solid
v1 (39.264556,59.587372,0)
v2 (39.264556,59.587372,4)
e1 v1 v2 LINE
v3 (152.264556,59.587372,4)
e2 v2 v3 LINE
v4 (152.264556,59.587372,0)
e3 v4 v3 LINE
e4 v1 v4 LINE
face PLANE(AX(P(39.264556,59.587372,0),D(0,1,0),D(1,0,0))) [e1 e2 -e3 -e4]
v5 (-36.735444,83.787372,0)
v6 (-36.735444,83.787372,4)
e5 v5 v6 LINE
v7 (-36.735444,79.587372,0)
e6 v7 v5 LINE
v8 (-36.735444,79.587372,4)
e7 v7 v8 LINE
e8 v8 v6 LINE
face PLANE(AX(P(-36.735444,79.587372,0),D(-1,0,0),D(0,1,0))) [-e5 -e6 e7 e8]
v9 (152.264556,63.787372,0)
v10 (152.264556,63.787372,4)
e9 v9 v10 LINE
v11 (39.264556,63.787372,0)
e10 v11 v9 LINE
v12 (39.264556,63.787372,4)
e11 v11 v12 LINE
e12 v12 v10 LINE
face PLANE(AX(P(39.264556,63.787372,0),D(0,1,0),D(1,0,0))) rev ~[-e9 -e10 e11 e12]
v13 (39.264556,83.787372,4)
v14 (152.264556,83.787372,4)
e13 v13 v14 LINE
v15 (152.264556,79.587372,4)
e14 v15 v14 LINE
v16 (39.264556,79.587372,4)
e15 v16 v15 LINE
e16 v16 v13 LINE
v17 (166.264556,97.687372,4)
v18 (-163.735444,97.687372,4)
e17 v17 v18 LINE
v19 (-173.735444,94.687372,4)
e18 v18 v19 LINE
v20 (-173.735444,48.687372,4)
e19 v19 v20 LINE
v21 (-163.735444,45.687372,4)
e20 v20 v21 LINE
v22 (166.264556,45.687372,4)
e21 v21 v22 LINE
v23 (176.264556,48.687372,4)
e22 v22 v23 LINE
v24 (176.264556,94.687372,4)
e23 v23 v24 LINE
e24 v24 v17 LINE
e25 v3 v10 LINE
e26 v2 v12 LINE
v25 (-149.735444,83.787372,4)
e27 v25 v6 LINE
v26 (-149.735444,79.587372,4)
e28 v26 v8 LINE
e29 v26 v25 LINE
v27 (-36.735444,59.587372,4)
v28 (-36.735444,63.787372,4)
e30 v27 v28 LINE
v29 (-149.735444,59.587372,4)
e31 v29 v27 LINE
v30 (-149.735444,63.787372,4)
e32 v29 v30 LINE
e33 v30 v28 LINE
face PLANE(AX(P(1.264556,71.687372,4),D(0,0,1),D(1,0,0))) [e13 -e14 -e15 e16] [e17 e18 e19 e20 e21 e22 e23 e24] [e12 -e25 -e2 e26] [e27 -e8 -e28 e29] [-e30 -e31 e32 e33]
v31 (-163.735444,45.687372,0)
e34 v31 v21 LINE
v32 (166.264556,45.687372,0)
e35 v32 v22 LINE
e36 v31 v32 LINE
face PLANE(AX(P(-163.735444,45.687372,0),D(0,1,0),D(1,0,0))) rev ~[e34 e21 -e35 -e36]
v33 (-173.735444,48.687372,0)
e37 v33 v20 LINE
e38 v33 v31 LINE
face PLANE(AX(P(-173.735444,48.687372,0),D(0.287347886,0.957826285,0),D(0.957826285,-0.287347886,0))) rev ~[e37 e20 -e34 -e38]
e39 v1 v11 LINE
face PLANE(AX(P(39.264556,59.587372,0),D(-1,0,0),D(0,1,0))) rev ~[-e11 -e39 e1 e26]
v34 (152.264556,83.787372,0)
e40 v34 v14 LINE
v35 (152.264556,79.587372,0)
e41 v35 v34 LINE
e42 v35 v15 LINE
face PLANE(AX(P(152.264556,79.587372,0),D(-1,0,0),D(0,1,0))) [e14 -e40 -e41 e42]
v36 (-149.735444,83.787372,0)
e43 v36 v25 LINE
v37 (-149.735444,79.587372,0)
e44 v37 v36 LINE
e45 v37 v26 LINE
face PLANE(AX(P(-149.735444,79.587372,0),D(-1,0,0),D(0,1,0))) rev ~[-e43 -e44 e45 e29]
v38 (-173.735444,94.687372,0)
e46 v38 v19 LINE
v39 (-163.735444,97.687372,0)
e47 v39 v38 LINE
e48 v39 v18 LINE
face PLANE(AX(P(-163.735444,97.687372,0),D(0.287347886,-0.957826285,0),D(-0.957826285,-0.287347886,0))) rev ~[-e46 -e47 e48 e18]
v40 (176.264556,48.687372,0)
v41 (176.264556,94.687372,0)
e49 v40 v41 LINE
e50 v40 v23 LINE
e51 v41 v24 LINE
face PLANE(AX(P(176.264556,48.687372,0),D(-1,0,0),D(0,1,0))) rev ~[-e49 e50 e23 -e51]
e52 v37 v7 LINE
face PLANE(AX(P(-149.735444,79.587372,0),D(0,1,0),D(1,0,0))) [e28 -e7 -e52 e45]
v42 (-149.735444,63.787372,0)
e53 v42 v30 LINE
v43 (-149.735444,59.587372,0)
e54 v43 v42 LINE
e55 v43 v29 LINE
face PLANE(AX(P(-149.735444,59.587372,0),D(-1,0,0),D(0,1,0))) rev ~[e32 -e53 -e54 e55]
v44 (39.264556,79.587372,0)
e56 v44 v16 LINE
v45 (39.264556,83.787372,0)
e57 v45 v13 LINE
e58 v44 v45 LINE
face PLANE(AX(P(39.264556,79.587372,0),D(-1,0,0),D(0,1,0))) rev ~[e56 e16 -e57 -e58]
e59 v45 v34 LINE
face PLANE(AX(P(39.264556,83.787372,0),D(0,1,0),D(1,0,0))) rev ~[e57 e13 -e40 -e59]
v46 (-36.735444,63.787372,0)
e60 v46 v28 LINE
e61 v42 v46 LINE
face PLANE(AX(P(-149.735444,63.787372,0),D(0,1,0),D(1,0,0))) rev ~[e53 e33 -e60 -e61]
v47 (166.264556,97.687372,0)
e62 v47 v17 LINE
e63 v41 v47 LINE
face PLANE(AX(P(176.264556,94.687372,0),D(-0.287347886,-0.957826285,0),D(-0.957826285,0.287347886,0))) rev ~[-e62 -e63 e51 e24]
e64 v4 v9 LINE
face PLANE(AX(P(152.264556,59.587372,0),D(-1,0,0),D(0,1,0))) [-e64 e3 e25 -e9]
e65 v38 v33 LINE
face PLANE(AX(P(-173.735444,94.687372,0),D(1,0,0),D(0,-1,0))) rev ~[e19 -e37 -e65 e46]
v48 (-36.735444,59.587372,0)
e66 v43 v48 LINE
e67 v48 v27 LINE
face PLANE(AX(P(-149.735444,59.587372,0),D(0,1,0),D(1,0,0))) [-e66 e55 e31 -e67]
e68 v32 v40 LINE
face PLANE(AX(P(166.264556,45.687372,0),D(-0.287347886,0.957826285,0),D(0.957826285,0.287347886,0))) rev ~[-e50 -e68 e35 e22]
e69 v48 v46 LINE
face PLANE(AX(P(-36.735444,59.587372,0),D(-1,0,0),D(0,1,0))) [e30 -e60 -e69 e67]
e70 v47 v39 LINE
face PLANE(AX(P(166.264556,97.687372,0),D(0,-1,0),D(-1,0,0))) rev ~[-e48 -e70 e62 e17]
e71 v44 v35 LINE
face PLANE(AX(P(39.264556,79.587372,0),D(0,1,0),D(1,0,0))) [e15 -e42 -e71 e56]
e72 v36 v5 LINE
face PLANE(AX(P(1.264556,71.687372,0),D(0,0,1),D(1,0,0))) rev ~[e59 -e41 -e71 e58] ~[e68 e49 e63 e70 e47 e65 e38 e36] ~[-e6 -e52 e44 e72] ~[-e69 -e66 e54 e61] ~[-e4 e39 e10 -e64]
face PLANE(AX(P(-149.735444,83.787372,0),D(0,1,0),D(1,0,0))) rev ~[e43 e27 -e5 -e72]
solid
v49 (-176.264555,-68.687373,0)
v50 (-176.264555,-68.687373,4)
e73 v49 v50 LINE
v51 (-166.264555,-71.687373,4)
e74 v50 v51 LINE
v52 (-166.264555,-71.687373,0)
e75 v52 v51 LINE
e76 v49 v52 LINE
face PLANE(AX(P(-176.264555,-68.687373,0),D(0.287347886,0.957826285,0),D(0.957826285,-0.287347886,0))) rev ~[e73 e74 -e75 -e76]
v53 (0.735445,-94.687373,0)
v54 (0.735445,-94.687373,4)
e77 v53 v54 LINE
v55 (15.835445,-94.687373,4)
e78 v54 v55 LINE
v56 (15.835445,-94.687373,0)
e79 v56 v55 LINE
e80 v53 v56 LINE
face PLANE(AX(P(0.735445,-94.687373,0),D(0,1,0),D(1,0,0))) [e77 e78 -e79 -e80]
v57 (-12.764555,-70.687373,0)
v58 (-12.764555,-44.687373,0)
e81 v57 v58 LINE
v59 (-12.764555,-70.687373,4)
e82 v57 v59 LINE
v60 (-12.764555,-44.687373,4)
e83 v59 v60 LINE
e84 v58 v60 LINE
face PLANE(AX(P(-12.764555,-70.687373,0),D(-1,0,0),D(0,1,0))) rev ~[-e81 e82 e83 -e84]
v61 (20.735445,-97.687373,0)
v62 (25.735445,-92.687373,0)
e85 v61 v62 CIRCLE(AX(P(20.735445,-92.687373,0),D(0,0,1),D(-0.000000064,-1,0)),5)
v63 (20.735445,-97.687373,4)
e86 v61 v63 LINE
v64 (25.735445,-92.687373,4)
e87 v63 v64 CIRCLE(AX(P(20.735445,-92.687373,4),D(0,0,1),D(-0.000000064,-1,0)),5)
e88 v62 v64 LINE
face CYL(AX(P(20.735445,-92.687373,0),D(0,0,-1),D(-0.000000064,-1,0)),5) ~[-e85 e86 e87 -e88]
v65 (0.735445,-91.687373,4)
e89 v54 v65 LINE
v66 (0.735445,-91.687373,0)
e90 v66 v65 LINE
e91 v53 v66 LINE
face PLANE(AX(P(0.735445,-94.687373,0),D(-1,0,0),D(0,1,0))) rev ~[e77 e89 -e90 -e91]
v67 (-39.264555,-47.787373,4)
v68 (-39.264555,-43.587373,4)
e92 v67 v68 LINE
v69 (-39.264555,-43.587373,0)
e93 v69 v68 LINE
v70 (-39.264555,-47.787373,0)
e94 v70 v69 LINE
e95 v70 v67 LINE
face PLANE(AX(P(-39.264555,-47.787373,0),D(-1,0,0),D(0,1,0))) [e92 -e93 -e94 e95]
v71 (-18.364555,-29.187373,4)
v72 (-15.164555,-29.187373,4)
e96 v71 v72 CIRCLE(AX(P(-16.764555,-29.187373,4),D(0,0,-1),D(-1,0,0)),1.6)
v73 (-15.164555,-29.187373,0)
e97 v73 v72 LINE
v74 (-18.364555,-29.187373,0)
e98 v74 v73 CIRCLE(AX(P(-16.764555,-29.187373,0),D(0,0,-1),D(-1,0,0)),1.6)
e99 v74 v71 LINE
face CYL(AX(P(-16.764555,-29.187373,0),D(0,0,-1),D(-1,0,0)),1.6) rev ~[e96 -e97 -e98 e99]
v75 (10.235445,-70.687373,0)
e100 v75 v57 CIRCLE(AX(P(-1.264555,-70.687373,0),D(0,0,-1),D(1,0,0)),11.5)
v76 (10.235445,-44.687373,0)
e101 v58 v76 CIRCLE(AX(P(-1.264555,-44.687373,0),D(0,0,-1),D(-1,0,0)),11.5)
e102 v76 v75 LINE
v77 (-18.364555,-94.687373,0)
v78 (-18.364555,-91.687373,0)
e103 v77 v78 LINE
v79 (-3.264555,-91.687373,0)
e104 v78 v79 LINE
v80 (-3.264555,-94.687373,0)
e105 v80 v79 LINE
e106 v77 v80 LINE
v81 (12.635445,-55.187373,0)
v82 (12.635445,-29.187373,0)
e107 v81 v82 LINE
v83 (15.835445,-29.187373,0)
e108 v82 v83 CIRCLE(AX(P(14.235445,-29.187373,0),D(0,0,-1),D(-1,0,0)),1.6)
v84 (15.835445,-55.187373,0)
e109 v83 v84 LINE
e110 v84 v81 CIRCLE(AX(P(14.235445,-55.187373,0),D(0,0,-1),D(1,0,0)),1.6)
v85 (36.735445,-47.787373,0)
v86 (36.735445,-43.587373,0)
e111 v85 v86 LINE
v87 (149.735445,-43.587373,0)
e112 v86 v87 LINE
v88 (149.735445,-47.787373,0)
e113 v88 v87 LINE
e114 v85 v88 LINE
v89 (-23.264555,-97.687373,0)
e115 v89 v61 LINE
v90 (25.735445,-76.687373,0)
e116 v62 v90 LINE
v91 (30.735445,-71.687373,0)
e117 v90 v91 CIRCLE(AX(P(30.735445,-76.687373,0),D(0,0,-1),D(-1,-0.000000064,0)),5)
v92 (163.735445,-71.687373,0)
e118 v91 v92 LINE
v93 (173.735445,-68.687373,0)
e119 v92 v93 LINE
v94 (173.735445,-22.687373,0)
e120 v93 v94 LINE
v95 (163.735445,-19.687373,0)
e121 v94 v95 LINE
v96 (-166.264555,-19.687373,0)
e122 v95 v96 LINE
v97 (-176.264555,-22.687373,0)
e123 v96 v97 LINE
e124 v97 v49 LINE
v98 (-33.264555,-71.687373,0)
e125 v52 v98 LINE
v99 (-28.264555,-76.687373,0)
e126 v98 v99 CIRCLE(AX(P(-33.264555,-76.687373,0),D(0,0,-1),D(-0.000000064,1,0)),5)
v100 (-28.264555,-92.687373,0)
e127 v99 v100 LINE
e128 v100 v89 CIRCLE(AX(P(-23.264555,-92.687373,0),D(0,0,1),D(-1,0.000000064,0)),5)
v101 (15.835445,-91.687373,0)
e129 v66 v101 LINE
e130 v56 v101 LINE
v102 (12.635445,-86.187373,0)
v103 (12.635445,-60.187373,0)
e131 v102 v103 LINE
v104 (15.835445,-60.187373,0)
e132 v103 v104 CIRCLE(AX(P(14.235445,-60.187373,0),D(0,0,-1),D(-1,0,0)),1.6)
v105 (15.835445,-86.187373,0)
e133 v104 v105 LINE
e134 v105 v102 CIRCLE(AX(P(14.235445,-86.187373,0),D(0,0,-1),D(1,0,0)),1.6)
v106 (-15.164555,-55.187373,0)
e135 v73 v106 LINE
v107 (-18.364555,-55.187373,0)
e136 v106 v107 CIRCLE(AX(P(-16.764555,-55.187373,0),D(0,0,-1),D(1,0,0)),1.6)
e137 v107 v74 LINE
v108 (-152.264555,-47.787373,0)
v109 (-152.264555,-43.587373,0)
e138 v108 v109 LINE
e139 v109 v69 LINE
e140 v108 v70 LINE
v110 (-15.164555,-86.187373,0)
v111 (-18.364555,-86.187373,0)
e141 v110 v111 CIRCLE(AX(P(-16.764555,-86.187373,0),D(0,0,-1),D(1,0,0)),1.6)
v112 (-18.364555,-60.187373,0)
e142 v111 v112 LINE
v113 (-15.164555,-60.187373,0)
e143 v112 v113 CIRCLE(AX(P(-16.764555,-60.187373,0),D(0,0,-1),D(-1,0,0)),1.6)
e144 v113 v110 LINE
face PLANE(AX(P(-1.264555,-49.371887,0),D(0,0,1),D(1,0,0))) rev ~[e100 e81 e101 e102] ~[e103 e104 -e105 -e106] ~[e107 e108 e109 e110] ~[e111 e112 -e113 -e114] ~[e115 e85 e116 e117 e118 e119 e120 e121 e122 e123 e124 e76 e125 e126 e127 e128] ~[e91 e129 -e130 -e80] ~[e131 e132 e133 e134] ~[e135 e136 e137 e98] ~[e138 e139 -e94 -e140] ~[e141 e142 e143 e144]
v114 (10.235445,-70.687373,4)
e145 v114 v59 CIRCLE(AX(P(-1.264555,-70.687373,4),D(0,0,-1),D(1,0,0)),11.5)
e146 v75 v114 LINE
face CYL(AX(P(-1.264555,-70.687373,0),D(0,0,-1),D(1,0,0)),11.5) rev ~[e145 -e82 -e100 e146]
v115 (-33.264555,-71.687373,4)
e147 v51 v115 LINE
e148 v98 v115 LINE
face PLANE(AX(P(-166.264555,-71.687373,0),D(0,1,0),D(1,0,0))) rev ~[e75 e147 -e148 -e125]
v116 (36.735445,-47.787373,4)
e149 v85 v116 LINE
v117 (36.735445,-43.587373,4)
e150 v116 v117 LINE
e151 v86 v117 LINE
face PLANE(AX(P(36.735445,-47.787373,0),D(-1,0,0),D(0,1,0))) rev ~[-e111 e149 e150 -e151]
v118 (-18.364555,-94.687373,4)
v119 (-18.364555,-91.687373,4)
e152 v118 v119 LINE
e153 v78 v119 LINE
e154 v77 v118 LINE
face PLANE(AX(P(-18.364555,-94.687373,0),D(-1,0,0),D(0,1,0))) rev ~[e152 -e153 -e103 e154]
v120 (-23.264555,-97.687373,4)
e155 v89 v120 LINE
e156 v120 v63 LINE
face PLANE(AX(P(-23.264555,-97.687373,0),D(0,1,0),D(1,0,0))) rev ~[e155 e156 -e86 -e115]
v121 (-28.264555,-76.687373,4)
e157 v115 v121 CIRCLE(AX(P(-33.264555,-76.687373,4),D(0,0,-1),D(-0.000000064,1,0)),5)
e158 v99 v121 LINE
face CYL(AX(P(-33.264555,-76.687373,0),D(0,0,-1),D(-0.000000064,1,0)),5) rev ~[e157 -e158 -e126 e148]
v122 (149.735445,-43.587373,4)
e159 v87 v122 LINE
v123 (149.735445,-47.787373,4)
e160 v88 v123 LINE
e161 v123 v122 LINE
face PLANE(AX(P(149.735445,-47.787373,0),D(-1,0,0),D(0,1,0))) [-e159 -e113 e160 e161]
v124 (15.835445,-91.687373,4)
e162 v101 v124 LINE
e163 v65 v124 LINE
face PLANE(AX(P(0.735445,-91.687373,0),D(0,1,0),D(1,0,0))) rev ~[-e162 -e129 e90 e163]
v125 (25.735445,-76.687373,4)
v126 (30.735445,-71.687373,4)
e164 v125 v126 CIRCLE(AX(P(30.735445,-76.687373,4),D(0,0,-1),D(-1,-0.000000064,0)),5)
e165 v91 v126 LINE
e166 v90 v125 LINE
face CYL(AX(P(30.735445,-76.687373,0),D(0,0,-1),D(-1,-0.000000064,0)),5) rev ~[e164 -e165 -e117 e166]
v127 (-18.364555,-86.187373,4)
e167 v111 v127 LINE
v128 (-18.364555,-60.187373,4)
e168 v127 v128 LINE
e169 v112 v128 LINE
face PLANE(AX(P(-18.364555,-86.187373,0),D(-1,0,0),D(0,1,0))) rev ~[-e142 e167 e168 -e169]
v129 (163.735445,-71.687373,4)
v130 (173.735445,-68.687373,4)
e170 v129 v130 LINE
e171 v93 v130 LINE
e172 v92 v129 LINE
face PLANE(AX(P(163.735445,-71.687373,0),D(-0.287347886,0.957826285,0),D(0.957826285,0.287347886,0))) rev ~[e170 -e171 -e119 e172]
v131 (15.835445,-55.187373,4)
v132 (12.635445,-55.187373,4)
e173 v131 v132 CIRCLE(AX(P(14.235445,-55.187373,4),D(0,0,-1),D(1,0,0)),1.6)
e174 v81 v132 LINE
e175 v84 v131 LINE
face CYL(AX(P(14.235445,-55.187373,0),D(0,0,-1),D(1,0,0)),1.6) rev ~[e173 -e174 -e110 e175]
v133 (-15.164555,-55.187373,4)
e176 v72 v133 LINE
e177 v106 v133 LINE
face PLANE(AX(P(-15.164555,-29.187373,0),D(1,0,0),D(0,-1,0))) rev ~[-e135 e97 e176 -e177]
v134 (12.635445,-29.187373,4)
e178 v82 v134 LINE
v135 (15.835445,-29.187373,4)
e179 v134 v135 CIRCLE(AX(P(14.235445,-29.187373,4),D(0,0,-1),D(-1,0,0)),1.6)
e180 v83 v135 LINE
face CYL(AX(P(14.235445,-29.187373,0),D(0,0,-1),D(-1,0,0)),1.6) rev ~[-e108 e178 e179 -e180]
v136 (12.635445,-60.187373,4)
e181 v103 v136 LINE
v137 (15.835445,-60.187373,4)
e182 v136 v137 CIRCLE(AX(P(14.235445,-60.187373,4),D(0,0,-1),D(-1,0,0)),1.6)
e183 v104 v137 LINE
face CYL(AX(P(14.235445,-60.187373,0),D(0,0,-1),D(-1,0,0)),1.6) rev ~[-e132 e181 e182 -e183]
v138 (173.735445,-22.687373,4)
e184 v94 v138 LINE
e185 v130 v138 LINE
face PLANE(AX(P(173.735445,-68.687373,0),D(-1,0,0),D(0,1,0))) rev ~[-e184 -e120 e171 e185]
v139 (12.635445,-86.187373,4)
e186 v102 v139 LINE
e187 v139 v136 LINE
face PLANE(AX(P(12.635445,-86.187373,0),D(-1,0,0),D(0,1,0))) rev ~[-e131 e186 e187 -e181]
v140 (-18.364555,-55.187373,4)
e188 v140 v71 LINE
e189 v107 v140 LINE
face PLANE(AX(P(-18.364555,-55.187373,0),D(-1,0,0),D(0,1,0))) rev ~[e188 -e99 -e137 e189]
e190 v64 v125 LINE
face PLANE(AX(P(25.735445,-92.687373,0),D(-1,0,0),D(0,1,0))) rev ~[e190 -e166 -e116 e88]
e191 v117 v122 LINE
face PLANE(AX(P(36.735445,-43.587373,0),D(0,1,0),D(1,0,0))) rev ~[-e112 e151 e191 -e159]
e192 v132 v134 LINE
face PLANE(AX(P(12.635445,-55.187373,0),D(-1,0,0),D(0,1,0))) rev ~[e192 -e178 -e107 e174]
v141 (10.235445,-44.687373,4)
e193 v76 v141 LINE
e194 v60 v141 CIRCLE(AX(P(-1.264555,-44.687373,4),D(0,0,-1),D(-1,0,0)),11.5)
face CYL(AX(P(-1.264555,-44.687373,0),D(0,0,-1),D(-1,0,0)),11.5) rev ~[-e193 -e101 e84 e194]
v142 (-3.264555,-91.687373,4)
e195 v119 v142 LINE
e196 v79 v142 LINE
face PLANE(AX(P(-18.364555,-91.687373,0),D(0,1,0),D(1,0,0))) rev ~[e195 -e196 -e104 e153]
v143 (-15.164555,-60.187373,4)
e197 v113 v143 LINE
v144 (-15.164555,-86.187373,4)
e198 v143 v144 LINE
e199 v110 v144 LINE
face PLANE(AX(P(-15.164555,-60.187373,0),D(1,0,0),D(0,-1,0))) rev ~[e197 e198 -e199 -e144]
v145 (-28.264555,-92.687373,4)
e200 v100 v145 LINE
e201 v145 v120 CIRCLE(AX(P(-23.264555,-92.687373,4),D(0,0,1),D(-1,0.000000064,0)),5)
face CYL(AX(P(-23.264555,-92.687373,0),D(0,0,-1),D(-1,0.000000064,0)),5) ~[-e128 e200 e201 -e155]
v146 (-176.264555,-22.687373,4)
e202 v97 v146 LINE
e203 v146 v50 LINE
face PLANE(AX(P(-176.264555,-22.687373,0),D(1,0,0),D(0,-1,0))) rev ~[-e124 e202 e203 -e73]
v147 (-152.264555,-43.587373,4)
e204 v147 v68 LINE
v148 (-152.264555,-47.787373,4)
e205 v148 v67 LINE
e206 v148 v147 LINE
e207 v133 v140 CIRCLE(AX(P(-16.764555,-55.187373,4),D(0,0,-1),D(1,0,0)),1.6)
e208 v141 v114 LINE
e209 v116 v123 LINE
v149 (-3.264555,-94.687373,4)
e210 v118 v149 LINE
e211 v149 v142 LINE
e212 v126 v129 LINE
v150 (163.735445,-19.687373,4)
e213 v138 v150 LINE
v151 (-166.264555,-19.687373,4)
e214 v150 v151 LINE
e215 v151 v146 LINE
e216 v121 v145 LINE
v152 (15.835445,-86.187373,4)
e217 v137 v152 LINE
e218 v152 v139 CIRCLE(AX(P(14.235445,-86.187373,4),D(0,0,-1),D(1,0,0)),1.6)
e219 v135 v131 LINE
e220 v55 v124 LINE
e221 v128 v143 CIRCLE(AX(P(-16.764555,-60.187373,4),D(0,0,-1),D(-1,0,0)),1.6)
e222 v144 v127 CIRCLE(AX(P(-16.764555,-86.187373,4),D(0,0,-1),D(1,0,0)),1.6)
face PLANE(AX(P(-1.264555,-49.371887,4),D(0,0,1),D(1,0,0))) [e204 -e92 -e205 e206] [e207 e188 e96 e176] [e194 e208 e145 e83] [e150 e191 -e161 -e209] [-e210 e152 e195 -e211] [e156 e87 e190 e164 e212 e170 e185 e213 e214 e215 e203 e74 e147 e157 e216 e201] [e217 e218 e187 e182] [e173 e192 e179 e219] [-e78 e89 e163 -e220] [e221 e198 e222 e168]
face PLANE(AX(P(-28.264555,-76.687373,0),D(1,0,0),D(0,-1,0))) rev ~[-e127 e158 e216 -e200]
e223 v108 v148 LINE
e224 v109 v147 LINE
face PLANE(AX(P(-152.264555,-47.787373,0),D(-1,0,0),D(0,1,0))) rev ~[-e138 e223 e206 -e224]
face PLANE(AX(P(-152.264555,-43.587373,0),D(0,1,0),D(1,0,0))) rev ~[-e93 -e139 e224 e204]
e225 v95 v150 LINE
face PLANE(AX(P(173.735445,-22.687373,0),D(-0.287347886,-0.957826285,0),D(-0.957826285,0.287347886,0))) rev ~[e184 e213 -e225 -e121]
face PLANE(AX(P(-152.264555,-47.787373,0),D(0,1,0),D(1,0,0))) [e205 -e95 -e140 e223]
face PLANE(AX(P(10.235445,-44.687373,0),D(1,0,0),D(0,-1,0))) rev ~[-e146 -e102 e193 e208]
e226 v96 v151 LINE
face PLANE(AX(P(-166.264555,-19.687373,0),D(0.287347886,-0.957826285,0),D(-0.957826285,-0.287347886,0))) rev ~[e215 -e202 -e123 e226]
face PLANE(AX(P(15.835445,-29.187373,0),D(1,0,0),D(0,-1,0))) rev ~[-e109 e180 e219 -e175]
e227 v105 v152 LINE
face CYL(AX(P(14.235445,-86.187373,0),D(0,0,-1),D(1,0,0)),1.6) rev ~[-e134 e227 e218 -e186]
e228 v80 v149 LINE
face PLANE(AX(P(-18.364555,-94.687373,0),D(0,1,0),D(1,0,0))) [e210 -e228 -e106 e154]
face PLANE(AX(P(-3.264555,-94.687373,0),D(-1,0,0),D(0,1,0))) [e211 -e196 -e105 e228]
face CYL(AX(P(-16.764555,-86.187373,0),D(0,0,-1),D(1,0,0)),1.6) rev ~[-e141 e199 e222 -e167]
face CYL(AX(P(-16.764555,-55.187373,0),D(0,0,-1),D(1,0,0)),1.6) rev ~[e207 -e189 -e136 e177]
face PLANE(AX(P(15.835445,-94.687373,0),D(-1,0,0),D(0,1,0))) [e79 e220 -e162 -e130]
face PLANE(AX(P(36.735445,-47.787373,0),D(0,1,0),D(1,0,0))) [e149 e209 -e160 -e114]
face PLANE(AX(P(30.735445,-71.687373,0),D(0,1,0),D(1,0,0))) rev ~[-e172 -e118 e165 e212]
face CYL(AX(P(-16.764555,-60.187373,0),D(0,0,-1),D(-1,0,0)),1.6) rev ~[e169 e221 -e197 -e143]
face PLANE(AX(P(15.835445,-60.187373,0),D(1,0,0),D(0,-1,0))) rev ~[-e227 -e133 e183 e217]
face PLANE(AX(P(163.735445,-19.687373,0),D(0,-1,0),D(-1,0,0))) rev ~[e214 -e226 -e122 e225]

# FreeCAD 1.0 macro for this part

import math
import FreeCAD as App
import Part
import Sketcher
Q = App.Units.Quantity

doc = App.newDocument("Part")
params = doc.addObject("Spreadsheet::Sheet", "Params")
for row, (alias, value) in enumerate([
    ("sketch1_radius", "5 mm"),
    ("sketch1_radius2", "1.6 mm"),
    ("sketch1_radius3", "11.5 mm"),
    ("sketch1_width", "330 mm"),
    ("sketch1_width2", "113 mm"),
    ("pad1_length", "4 mm"),
], start=1):
    params.set(f"A{row}", alias)
    params.set(f"B{row}", "=" + value)
    params.setAlias(f"B{row}", alias)

body = doc.addObject("PartDesign::Body", "Body")
body.AllowCompound = True

# Sketch on XY plane
sketch1 = body.newObject("Sketcher::SketchObject", "Sketch")
sketch1.AttachmentSupport = (doc.getObject("XY_Plane"), [""])
sketch1.MapMode = "FlatFace"
sketch1.addGeometry(Part.LineSegment(App.Vector(-163.735444, 97.687372, 0), App.Vector(-173.735444, 94.687372, 0)), False)
sketch1.addGeometry(Part.LineSegment(App.Vector(-173.735444, 94.687372, 0), App.Vector(-173.735444, 48.687372, 0)), False)
sketch1.addGeometry(Part.LineSegment(App.Vector(-173.735444, 48.687372, 0), App.Vector(-163.735444, 45.687372, 0)), False)
sketch1.addGeometry(Part.LineSegment(App.Vector(-163.735444, 45.687372, 0), App.Vector(166.264556, 45.687372, 0)), False)
sketch1.addGeometry(Part.LineSegment(App.Vector(166.264556, 45.687372, 0), App.Vector(176.264556, 48.687372, 0)), False)
sketch1.addGeometry(Part.LineSegment(App.Vector(176.264556, 48.687372, 0), App.Vector(176.264556, 94.687372, 0)), False)
sketch1.addGeometry(Part.LineSegment(App.Vector(176.264556, 94.687372, 0), App.Vector(166.264556, 97.687372, 0)), False)
sketch1.addGeometry(Part.LineSegment(App.Vector(166.264556, 97.687372, 0), App.Vector(-163.735444, 97.687372, 0)), False)
sketch1.addGeometry(Part.LineSegment(App.Vector(-36.735444, 59.587372, 0), App.Vector(-149.735444, 59.587372, 0)), False)
sketch1.addGeometry(Part.LineSegment(App.Vector(-149.735444, 59.587372, 0), App.Vector(-149.735444, 63.787372, 0)), False)
sketch1.addGeometry(Part.LineSegment(App.Vector(-149.735444, 63.787372, 0), App.Vector(-36.735444, 63.787372, 0)), False)
sketch1.addGeometry(Part.LineSegment(App.Vector(-36.735444, 63.787372, 0), App.Vector(-36.735444, 59.587372, 0)), False)
sketch1.addGeometry(Part.LineSegment(App.Vector(152.264556, 59.587372, 0), App.Vector(39.264556, 59.587372, 0)), False)
sketch1.addGeometry(Part.LineSegment(App.Vector(39.264556, 59.587372, 0), App.Vector(39.264556, 63.787372, 0)), False)
sketch1.addGeometry(Part.LineSegment(App.Vector(39.264556, 63.787372, 0), App.Vector(152.264556, 63.787372, 0)), False)
sketch1.addGeometry(Part.LineSegment(App.Vector(152.264556, 63.787372, 0), App.Vector(152.264556, 59.587372, 0)), False)
sketch1.addGeometry(Part.LineSegment(App.Vector(-36.735444, 79.587372, 0), App.Vector(-149.735444, 79.587372, 0)), False)
sketch1.addGeometry(Part.LineSegment(App.Vector(-149.735444, 79.587372, 0), App.Vector(-149.735444, 83.787372, 0)), False)
sketch1.addGeometry(Part.LineSegment(App.Vector(-149.735444, 83.787372, 0), App.Vector(-36.735444, 83.787372, 0)), False)
sketch1.addGeometry(Part.LineSegment(App.Vector(-36.735444, 83.787372, 0), App.Vector(-36.735444, 79.587372, 0)), False)
sketch1.addGeometry(Part.LineSegment(App.Vector(152.264556, 79.587372, 0), App.Vector(39.264556, 79.587372, 0)), False)
sketch1.addGeometry(Part.LineSegment(App.Vector(39.264556, 79.587372, 0), App.Vector(39.264556, 83.787372, 0)), False)
sketch1.addGeometry(Part.LineSegment(App.Vector(39.264556, 83.787372, 0), App.Vector(152.264556, 83.787372, 0)), False)
sketch1.addGeometry(Part.LineSegment(App.Vector(152.264556, 83.787372, 0), App.Vector(152.264556, 79.587372, 0)), False)
sketch1.addGeometry(Part.LineSegment(App.Vector(163.735445, -19.687373, 0), App.Vector(-166.264555, -19.687373, 0)), False)
sketch1.addGeometry(Part.LineSegment(App.Vector(-166.264555, -19.687373, 0), App.Vector(-176.264555, -22.687373, 0)), False)
sketch1.addGeometry(Part.LineSegment(App.Vector(-176.264555, -22.687373, 0), App.Vector(-176.264555, -68.687373, 0)), False)
sketch1.addGeometry(Part.LineSegment(App.Vector(-176.264555, -68.687373, 0), App.Vector(-166.264555, -71.687373, 0)), False)
sketch1.addGeometry(Part.LineSegment(App.Vector(-166.264555, -71.687373, 0), App.Vector(-33.264555, -71.687373, 0)), False)
sketch1.addGeometry(Part.ArcOfCircle(Part.Circle(App.Vector(-33.264555, -76.687373, 0), App.Vector(0, 0, 1), 5), math.radians(-0.000004), math.radians(90.000004)), False)
sketch1.addGeometry(Part.LineSegment(App.Vector(-28.264555, -76.687373, 0), App.Vector(-28.264555, -92.687373, 0)), False)
sketch1.addGeometry(Part.ArcOfCircle(Part.Circle(App.Vector(-23.264555, -92.687373, 0), App.Vector(0, 0, 1), 5), math.radians(179.999996), math.radians(270.000004)), False)
sketch1.addGeometry(Part.LineSegment(App.Vector(-23.264555, -97.687373, 0), App.Vector(20.735445, -97.687373, 0)), False)
sketch1.addGeometry(Part.ArcOfCircle(Part.Circle(App.Vector(20.735445, -92.687373, 0), App.Vector(0, 0, 1), 5), math.radians(-90.000004), math.radians(0.000004)), False)
sketch1.addGeometry(Part.LineSegment(App.Vector(25.735445, -92.687373, 0), App.Vector(25.735445, -76.687373, 0)), False)
sketch1.addGeometry(Part.ArcOfCircle(Part.Circle(App.Vector(30.735445, -76.687373, 0), App.Vector(0, 0, 1), 5), math.radians(89.999996), math.radians(180.000004)), False)
sketch1.addGeometry(Part.LineSegment(App.Vector(30.735445, -71.687373, 0), App.Vector(163.735445, -71.687373, 0)), False)
sketch1.addGeometry(Part.LineSegment(App.Vector(163.735445, -71.687373, 0), App.Vector(173.735445, -68.687373, 0)), False)
sketch1.addGeometry(Part.LineSegment(App.Vector(173.735445, -68.687373, 0), App.Vector(173.735445, -22.687373, 0)), False)
sketch1.addGeometry(Part.LineSegment(App.Vector(173.735445, -22.687373, 0), App.Vector(163.735445, -19.687373, 0)), False)
sketch1.addGeometry(Part.LineSegment(App.Vector(-3.264555, -94.687373, 0), App.Vector(-18.364555, -94.687373, 0)), False)
sketch1.addGeometry(Part.LineSegment(App.Vector(-18.364555, -94.687373, 0), App.Vector(-18.364555, -91.687373, 0)), False)
sketch1.addGeometry(Part.LineSegment(App.Vector(-18.364555, -91.687373, 0), App.Vector(-3.264555, -91.687373, 0)), False)
sketch1.addGeometry(Part.LineSegment(App.Vector(-3.264555, -91.687373, 0), App.Vector(-3.264555, -94.687373, 0)), False)
sketch1.addGeometry(Part.ArcOfCircle(Part.Circle(App.Vector(-16.764555, -60.187373, 0), App.Vector(0, 0, 1), 1.6), math.radians(0), math.radians(180)), False)
sketch1.addGeometry(Part.LineSegment(App.Vector(-15.164555, -60.187373, 0), App.Vector(-15.164555, -86.187373, 0)), False)
sketch1.addGeometry(Part.ArcOfCircle(Part.Circle(App.Vector(-16.764555, -86.187373, 0), App.Vector(0, 0, 1), 1.6), math.radians(180), math.radians(360)), False)
sketch1.addGeometry(Part.LineSegment(App.Vector(-18.364555, -86.187373, 0), App.Vector(-18.364555, -60.187373, 0)), False)
sketch1.addGeometry(Part.LineSegment(App.Vector(15.835445, -94.687373, 0), App.Vector(0.735445, -94.687373, 0)), False)
sketch1.addGeometry(Part.LineSegment(App.Vector(0.735445, -94.687373, 0), App.Vector(0.735445, -91.687373, 0)), False)
sketch1.addGeometry(Part.LineSegment(App.Vector(0.735445, -91.687373, 0), App.Vector(15.835445, -91.687373, 0)), False)
sketch1.addGeometry(Part.LineSegment(App.Vector(15.835445, -91.687373, 0), App.Vector(15.835445, -94.687373, 0)), False)
sketch1.addGeometry(Part.ArcOfCircle(Part.Circle(App.Vector(14.235445, -60.187373, 0), App.Vector(0, 0, 1), 1.6), math.radians(0), math.radians(180)), False)
sketch1.addGeometry(Part.LineSegment(App.Vector(15.835445, -60.187373, 0), App.Vector(15.835445, -86.187373, 0)), False)
sketch1.addGeometry(Part.ArcOfCircle(Part.Circle(App.Vector(14.235445, -86.187373, 0), App.Vector(0, 0, 1), 1.6), math.radians(180), math.radians(360)), False)
sketch1.addGeometry(Part.LineSegment(App.Vector(12.635445, -86.187373, 0), App.Vector(12.635445, -60.187373, 0)), False)
sketch1.addGeometry(Part.LineSegment(App.Vector(-39.264555, -47.787373, 0), App.Vector(-152.264555, -47.787373, 0)), False)
sketch1.addGeometry(Part.LineSegment(App.Vector(-152.264555, -47.787373, 0), App.Vector(-152.264555, -43.587373, 0)), False)
sketch1.addGeometry(Part.LineSegment(App.Vector(-152.264555, -43.587373, 0), App.Vector(-39.264555, -43.587373, 0)), False)
sketch1.addGeometry(Part.LineSegment(App.Vector(-39.264555, -43.587373, 0), App.Vector(-39.264555, -47.787373, 0)), False)
sketch1.addGeometry(Part.ArcOfCircle(Part.Circle(App.Vector(-16.764555, -55.187373, 0), App.Vector(0, 0, 1), 1.6), math.radians(180), math.radians(360)), False)
sketch1.addGeometry(Part.LineSegment(App.Vector(-18.364555, -55.187373, 0), App.Vector(-18.364555, -29.187373, 0)), False)
sketch1.addGeometry(Part.ArcOfCircle(Part.Circle(App.Vector(-16.764555, -29.187373, 0), App.Vector(0, 0, 1), 1.6), math.radians(0), math.radians(180)), False)
sketch1.addGeometry(Part.LineSegment(App.Vector(-15.164555, -29.187373, 0), App.Vector(-15.164555, -55.187373, 0)), False)
sketch1.addGeometry(Part.ArcOfCircle(Part.Circle(App.Vector(-1.264555, -70.687373, 0), App.Vector(0, 0, 1), 11.5), math.radians(180), math.radians(360)), False)
sketch1.addGeometry(Part.LineSegment(App.Vector(-12.764555, -70.687373, 0), App.Vector(-12.764555, -44.687373, 0)), False)
sketch1.addGeometry(Part.ArcOfCircle(Part.Circle(App.Vector(-1.264555, -44.687373, 0), App.Vector(0, 0, 1), 11.5), math.radians(0), math.radians(180)), False)
sketch1.addGeometry(Part.LineSegment(App.Vector(10.235445, -44.687373, 0), App.Vector(10.235445, -70.687373, 0)), False)
sketch1.addGeometry(Part.LineSegment(App.Vector(149.735445, -47.787373, 0), App.Vector(36.735445, -47.787373, 0)), False)
sketch1.addGeometry(Part.LineSegment(App.Vector(36.735445, -47.787373, 0), App.Vector(36.735445, -43.587373, 0)), False)
sketch1.addGeometry(Part.LineSegment(App.Vector(36.735445, -43.587373, 0), App.Vector(149.735445, -43.587373, 0)), False)
sketch1.addGeometry(Part.LineSegment(App.Vector(149.735445, -43.587373, 0), App.Vector(149.735445, -47.787373, 0)), False)
sketch1.addGeometry(Part.ArcOfCircle(Part.Circle(App.Vector(14.235445, -55.187373, 0), App.Vector(0, 0, 1), 1.6), math.radians(180), math.radians(360)), False)
sketch1.addGeometry(Part.LineSegment(App.Vector(12.635445, -55.187373, 0), App.Vector(12.635445, -29.187373, 0)), False)
sketch1.addGeometry(Part.ArcOfCircle(Part.Circle(App.Vector(14.235445, -29.187373, 0), App.Vector(0, 0, 1), 1.6), math.radians(0), math.radians(180)), False)
sketch1.addGeometry(Part.LineSegment(App.Vector(15.835445, -29.187373, 0), App.Vector(15.835445, -55.187373, 0)), False)
sketch1.addConstraint(Sketcher.Constraint("Coincident", 0, 2, 1, 1))
sketch1.addConstraint(Sketcher.Constraint("Coincident", 1, 2, 2, 1))
sketch1.addConstraint(Sketcher.Constraint("Coincident", 2, 2, 3, 1))
sketch1.addConstraint(Sketcher.Constraint("Coincident", 3, 2, 4, 1))
sketch1.addConstraint(Sketcher.Constraint("Coincident", 4, 2, 5, 1))
sketch1.addConstraint(Sketcher.Constraint("Coincident", 5, 2, 6, 1))
sketch1.addConstraint(Sketcher.Constraint("Coincident", 6, 2, 7, 1))
sketch1.addConstraint(Sketcher.Constraint("Coincident", 7, 2, 0, 1))
sketch1.addConstraint(Sketcher.Constraint("Coincident", 8, 2, 9, 1))
sketch1.addConstraint(Sketcher.Constraint("Coincident", 9, 2, 10, 1))
sketch1.addConstraint(Sketcher.Constraint("Coincident", 10, 2, 11, 1))
sketch1.addConstraint(Sketcher.Constraint("Coincident", 11, 2, 8, 1))
sketch1.addConstraint(Sketcher.Constraint("Coincident", 12, 2, 13, 1))
sketch1.addConstraint(Sketcher.Constraint("Coincident", 13, 2, 14, 1))
sketch1.addConstraint(Sketcher.Constraint("Coincident", 14, 2, 15, 1))
sketch1.addConstraint(Sketcher.Constraint("Coincident", 15, 2, 12, 1))
sketch1.addConstraint(Sketcher.Constraint("Coincident", 16, 2, 17, 1))
sketch1.addConstraint(Sketcher.Constraint("Coincident", 17, 2, 18, 1))
sketch1.addConstraint(Sketcher.Constraint("Coincident", 18, 2, 19, 1))
sketch1.addConstraint(Sketcher.Constraint("Coincident", 19, 2, 16, 1))
sketch1.addConstraint(Sketcher.Constraint("Coincident", 20, 2, 21, 1))
sketch1.addConstraint(Sketcher.Constraint("Coincident", 21, 2, 22, 1))
sketch1.addConstraint(Sketcher.Constraint("Coincident", 22, 2, 23, 1))
sketch1.addConstraint(Sketcher.Constraint("Coincident", 23, 2, 20, 1))
sketch1.addConstraint(Sketcher.Constraint("Coincident", 24, 2, 25, 1))
sketch1.addConstraint(Sketcher.Constraint("Coincident", 25, 2, 26, 1))
sketch1.addConstraint(Sketcher.Constraint("Coincident", 26, 2, 27, 1))
sketch1.addConstraint(Sketcher.Constraint("Coincident", 27, 2, 28, 1))
sketch1.addConstraint(Sketcher.Constraint("Tangent", 28, 2, 29, 2))
sketch1.addConstraint(Sketcher.Constraint("Tangent", 29, 1, 30, 1))
sketch1.addConstraint(Sketcher.Constraint("Tangent", 30, 2, 31, 1))
sketch1.addConstraint(Sketcher.Constraint("Tangent", 31, 2, 32, 1))
sketch1.addConstraint(Sketcher.Constraint("Tangent", 32, 2, 33, 1))
sketch1.addConstraint(Sketcher.Constraint("Tangent", 33, 2, 34, 1))
sketch1.addConstraint(Sketcher.Constraint("Tangent", 34, 2, 35, 2))
sketch1.addConstraint(Sketcher.Constraint("Tangent", 35, 1, 36, 1))
sketch1.addConstraint(Sketcher.Constraint("Coincident", 36, 2, 37, 1))
sketch1.addConstraint(Sketcher.Constraint("Coincident", 37, 2, 38, 1))
sketch1.addConstraint(Sketcher.Constraint("Coincident", 38, 2, 39, 1))
sketch1.addConstraint(Sketcher.Constraint("Coincident", 39, 2, 24, 1))
sketch1.addConstraint(Sketcher.Constraint("Coincident", 40, 2, 41, 1))
sketch1.addConstraint(Sketcher.Constraint("Coincident", 41, 2, 42, 1))
sketch1.addConstraint(Sketcher.Constraint("Coincident", 42, 2, 43, 1))
sketch1.addConstraint(Sketcher.Constraint("Coincident", 43, 2, 40, 1))
sketch1.addConstraint(Sketcher.Constraint("Tangent", 44, 1, 45, 1))
sketch1.addConstraint(Sketcher.Constraint("Tangent", 45, 2, 46, 2))
sketch1.addConstraint(Sketcher.Constraint("Tangent", 46, 1, 47, 1))
sketch1.addConstraint(Sketcher.Constraint("Tangent", 47, 2, 44, 2))
sketch1.addConstraint(Sketcher.Constraint("Coincident", 48, 2, 49, 1))
sketch1.addConstraint(Sketcher.Constraint("Coincident", 49, 2, 50, 1))
sketch1.addConstraint(Sketcher.Constraint("Coincident", 50, 2, 51, 1))
sketch1.addConstraint(Sketcher.Constraint("Coincident", 51, 2, 48, 1))
sketch1.addConstraint(Sketcher.Constraint("Tangent", 52, 1, 53, 1))
sketch1.addConstraint(Sketcher.Constraint("Tangent", 53, 2, 54, 2))
sketch1.addConstraint(Sketcher.Constraint("Tangent", 54, 1, 55, 1))
sketch1.addConstraint(Sketcher.Constraint("Tangent", 55, 2, 52, 2))
sketch1.addConstraint(Sketcher.Constraint("Coincident", 56, 2, 57, 1))
sketch1.addConstraint(Sketcher.Constraint("Coincident", 57, 2, 58, 1))
sketch1.addConstraint(Sketcher.Constraint("Coincident", 58, 2, 59, 1))
sketch1.addConstraint(Sketcher.Constraint("Coincident", 59, 2, 56, 1))
sketch1.addConstraint(Sketcher.Constraint("Tangent", 60, 1, 61, 1))
sketch1.addConstraint(Sketcher.Constraint("Tangent", 61, 2, 62, 2))
sketch1.addConstraint(Sketcher.Constraint("Tangent", 62, 1, 63, 1))
sketch1.addConstraint(Sketcher.Constraint("Tangent", 63, 2, 60, 2))
sketch1.addConstraint(Sketcher.Constraint("Tangent", 64, 1, 65, 1))
sketch1.addConstraint(Sketcher.Constraint("Tangent", 65, 2, 66, 2))
sketch1.addConstraint(Sketcher.Constraint("Tangent", 66, 1, 67, 1))
sketch1.addConstraint(Sketcher.Constraint("Tangent", 67, 2, 64, 2))
sketch1.addConstraint(Sketcher.Constraint("Coincident", 68, 2, 69, 1))
sketch1.addConstraint(Sketcher.Constraint("Coincident", 69, 2, 70, 1))
sketch1.addConstraint(Sketcher.Constraint("Coincident", 70, 2, 71, 1))
sketch1.addConstraint(Sketcher.Constraint("Coincident", 71, 2, 68, 1))
sketch1.addConstraint(Sketcher.Constraint("Tangent", 72, 1, 73, 1))
sketch1.addConstraint(Sketcher.Constraint("Tangent", 73, 2, 74, 2))
sketch1.addConstraint(Sketcher.Constraint("Tangent", 74, 1, 75, 1))
sketch1.addConstraint(Sketcher.Constraint("Tangent", 75, 2, 72, 2))
sketch1.addConstraint(Sketcher.Constraint("Vertical", 1))
sketch1.addConstraint(Sketcher.Constraint("Horizontal", 3))
sketch1.addConstraint(Sketcher.Constraint("Vertical", 5))
sketch1.addConstraint(Sketcher.Constraint("Horizontal", 7))
sketch1.addConstraint(Sketcher.Constraint("Horizontal", 8))
sketch1.addConstraint(Sketcher.Constraint("Vertical", 9))
sketch1.addConstraint(Sketcher.Constraint("Horizontal", 10))
sketch1.addConstraint(Sketcher.Constraint("Vertical", 11))
sketch1.addConstraint(Sketcher.Constraint("Horizontal", 12))
sketch1.addConstraint(Sketcher.Constraint("Vertical", 13))
sketch1.addConstraint(Sketcher.Constraint("Horizontal", 14))
sketch1.addConstraint(Sketcher.Constraint("Vertical", 15))
sketch1.addConstraint(Sketcher.Constraint("Horizontal", 16))
sketch1.addConstraint(Sketcher.Constraint("Vertical", 17))
sketch1.addConstraint(Sketcher.Constraint("Horizontal", 18))
sketch1.addConstraint(Sketcher.Constraint("Vertical", 19))
sketch1.addConstraint(Sketcher.Constraint("Horizontal", 20))
sketch1.addConstraint(Sketcher.Constraint("Vertical", 21))
sketch1.addConstraint(Sketcher.Constraint("Horizontal", 22))
sketch1.addConstraint(Sketcher.Constraint("Vertical", 23))
sketch1.addConstraint(Sketcher.Constraint("Horizontal", 24))
sketch1.addConstraint(Sketcher.Constraint("Vertical", 26))
sketch1.addConstraint(Sketcher.Constraint("Horizontal", 28))
sketch1.addConstraint(Sketcher.Constraint("Vertical", 30))
sketch1.addConstraint(Sketcher.Constraint("Horizontal", 32))
sketch1.addConstraint(Sketcher.Constraint("Vertical", 34))
sketch1.addConstraint(Sketcher.Constraint("Horizontal", 36))
sketch1.addConstraint(Sketcher.Constraint("Vertical", 38))
sketch1.addConstraint(Sketcher.Constraint("Horizontal", 40))
sketch1.addConstraint(Sketcher.Constraint("Vertical", 41))
sketch1.addConstraint(Sketcher.Constraint("Horizontal", 42))
sketch1.addConstraint(Sketcher.Constraint("Vertical", 43))
sketch1.addConstraint(Sketcher.Constraint("Vertical", 45))
sketch1.addConstraint(Sketcher.Constraint("Vertical", 47))
sketch1.addConstraint(Sketcher.Constraint("Horizontal", 48))
sketch1.addConstraint(Sketcher.Constraint("Vertical", 49))
sketch1.addConstraint(Sketcher.Constraint("Horizontal", 50))
sketch1.addConstraint(Sketcher.Constraint("Vertical", 51))
sketch1.addConstraint(Sketcher.Constraint("Vertical", 53))
sketch1.addConstraint(Sketcher.Constraint("Vertical", 55))
sketch1.addConstraint(Sketcher.Constraint("Horizontal", 56))
sketch1.addConstraint(Sketcher.Constraint("Vertical", 57))
sketch1.addConstraint(Sketcher.Constraint("Horizontal", 58))
sketch1.addConstraint(Sketcher.Constraint("Vertical", 59))
sketch1.addConstraint(Sketcher.Constraint("Vertical", 61))
sketch1.addConstraint(Sketcher.Constraint("Vertical", 63))
sketch1.addConstraint(Sketcher.Constraint("Vertical", 65))
sketch1.addConstraint(Sketcher.Constraint("Vertical", 67))
sketch1.addConstraint(Sketcher.Constraint("Horizontal", 68))
sketch1.addConstraint(Sketcher.Constraint("Vertical", 69))
sketch1.addConstraint(Sketcher.Constraint("Horizontal", 70))
sketch1.addConstraint(Sketcher.Constraint("Vertical", 71))
sketch1.addConstraint(Sketcher.Constraint("Vertical", 73))
sketch1.addConstraint(Sketcher.Constraint("Vertical", 75))
sketch1.addConstraint(Sketcher.Constraint("Equal", 29, 31))
sketch1.addConstraint(Sketcher.Constraint("Equal", 31, 33))
sketch1.addConstraint(Sketcher.Constraint("Equal", 33, 35))
sketch1.addConstraint(Sketcher.Constraint("Equal", 46, 52))
sketch1.addConstraint(Sketcher.Constraint("Equal", 54, 60))
sketch1.addConstraint(Sketcher.Constraint("Equal", 62, 72))
sketch1.addConstraint(Sketcher.Constraint("Parallel", 0, 4))
sketch1.addConstraint(Sketcher.Constraint("Parallel", 2, 6))
sketch1.addConstraint(Sketcher.Constraint("Parallel", 4, 25))
sketch1.addConstraint(Sketcher.Constraint("Parallel", 6, 27))
sketch1.addConstraint(Sketcher.Constraint("Parallel", 25, 37))
sketch1.addConstraint(Sketcher.Constraint("Parallel", 27, 39))
sketch1.addConstraint(Sketcher.Constraint("Horizontal", 29, 3, 35, 3))
sketch1.addConstraint(Sketcher.Constraint("Horizontal", 44, 3, 52, 3))
sketch1.addConstraint(Sketcher.Constraint("Horizontal", 46, 3, 54, 3))
sketch1.addConstraint(Sketcher.Constraint("Horizontal", 60, 3, 72, 3))
sketch1.addConstraint(Sketcher.Constraint("Horizontal", 62, 3, 74, 3))
sketch1.addConstraint(Sketcher.Constraint("Horizontal", 1, 2, 4, 2))
sketch1.addConstraint(Sketcher.Constraint("Horizontal", 0, 2, 5, 2))
sketch1.addConstraint(Sketcher.Constraint("Horizontal", 11, 2, 12, 2))
sketch1.addConstraint(Sketcher.Constraint("Horizontal", 10, 2, 13, 2))
sketch1.addConstraint(Sketcher.Constraint("Horizontal", 19, 2, 20, 2))
sketch1.addConstraint(Sketcher.Constraint("Horizontal", 18, 2, 21, 2))
sketch1.addConstraint(Sketcher.Constraint("Horizontal", 26, 2, 37, 2))
sketch1.addConstraint(Sketcher.Constraint("Horizontal", 25, 2, 38, 2))
sketch1.addConstraint(Sketcher.Constraint("Horizontal", 43, 2, 48, 2))
sketch1.addConstraint(Sketcher.Constraint("Horizontal", 42, 2, 49, 2))
sketch1.addConstraint(Sketcher.Constraint("Horizontal", 59, 2, 68, 2))
sketch1.addConstraint(Sketcher.Constraint("Horizontal", 58, 2, 69, 2))
sketch1.addConstraint(Sketcher.Constraint("Vertical", 46, 3, 60, 3))
sketch1.addConstraint(Sketcher.Constraint("Vertical", 54, 3, 72, 3))
sketch1.addConstraint(Sketcher.Constraint("Vertical", 3, 2, 6, 2))
sketch1.addConstraint(Sketcher.Constraint("Vertical", 2, 2, 7, 2))
sketch1.addConstraint(Sketcher.Constraint("Vertical", 9, 2, 16, 2))
sketch1.addConstraint(Sketcher.Constraint("Vertical", 11, 2, 18, 2))
sketch1.addConstraint(Sketcher.Constraint("Vertical", 13, 2, 20, 2))
sketch1.addConstraint(Sketcher.Constraint("Vertical", 15, 2, 22, 2))
sketch1.addConstraint(Sketcher.Constraint("Vertical", 24, 2, 27, 2))
sketch1.addConstraint(Sketcher.Constraint("Vertical", 41, 2, 46, 1))
sketch1.addConstraint(Sketcher.Constraint("Vertical", 51, 2, 52, 1))
sketch1.addConstraint(Sketcher.Constraint("Equal", 10, 12))
sketch1.addConstraint(Sketcher.Constraint("Equal", 7, 24))
sketch1.addConstraint(Sketcher.Constraint("Equal", 28, 36))
sketch1.addConstraint(Sketcher.Constraint("Equal", 42, 48))
sketch1.addConstraint(Sketcher.Constraint("Equal", 22, 56))
sketch1.addConstraint(Sketcher.Constraint("Equal", 58, 68))
sketch1.addConstraint(Sketcher.Constraint("Equal", 15, 17))
sketch1.addConstraint(Sketcher.Constraint("Equal", 5, 26))
sketch1.addConstraint(Sketcher.Constraint("Equal", 23, 57))
sketch1.addConstraint(Sketcher.Constraint("Equal", 55, 61))
sketch1.addConstraint(Sketcher.Constraint("Equal", 63, 65))
sketch1.addConstraint(Sketcher.Constraint("Equal", 6, 25))
sketch1.addConstraint(Sketcher.Constraint("Radius", 29, Q("5 mm")))
sketch1.addConstraint(Sketcher.Constraint("Radius", 44, Q("1.6 mm")))
sketch1.addConstraint(Sketcher.Constraint("Radius", 64, Q("11.5 mm")))
sketch1.addConstraint(Sketcher.Constraint("DistanceX", 3, 1, 3, 2, Q("330 mm")))
sketch1.addConstraint(Sketcher.Constraint("DistanceX", 8, 2, 8, 1, Q("113 mm")))
sketch1.addConstraint(Sketcher.Constraint("DistanceX", 28, 1, 28, 2, Q("133 mm")))
sketch1.addConstraint(Sketcher.Constraint("DistanceY", 1, 2, 1, 1, Q("46 mm")))
sketch1.addConstraint(Sketcher.Constraint("DistanceY", 30, 2, 30, 1, Q("16 mm")))
sketch1.addConstraint(Sketcher.Constraint("DistanceY", 41, 1, 41, 2, Q("3 mm")))
sketch1.addConstraint(Sketcher.Constraint("DistanceY", 45, 2, 45, 1, Q("26 mm")))
sketch1.addConstraint(Sketcher.Constraint("DistanceX", 40, 2, 40, 1, Q("15.1 mm")))
sketch1.addConstraint(Sketcher.Constraint("DistanceY", 9, 1, 9, 2, Q("4.2 mm")))
sketch1.addConstraint(Sketcher.Constraint("DistanceY", -1, 1, 0, 2, Q("94.687372 mm")))
sketch1.addConstraint(Sketcher.Constraint("DistanceY", -1, 1, 6, 2, Q("97.687372 mm")))
sketch1.addConstraint(Sketcher.Constraint("DistanceY", -1, 1, 9, 2, Q("63.787372 mm")))
sketch1.addConstraint(Sketcher.Constraint("DistanceY", -1, 1, 16, 2, Q("79.587372 mm")))
sketch1.addConstraint(Sketcher.Constraint("Distance", 0, Q("10.440307 mm")))
sketch1.addConstraint(Sketcher.Constraint("DistanceX", 29, 3, -1, 1, Q("33.264555 mm")))
sketch1.addConstraint(Sketcher.Constraint("DistanceY", 29, 3, -1, 1, Q("76.687373 mm")))
sketch1.addConstraint(Sketcher.Constraint("DistanceX", 44, 3, -1, 1, Q("16.764555 mm")))
sketch1.addConstraint(Sketcher.Constraint("DistanceY", 44, 3, -1, 1, Q("60.187373 mm")))
sketch1.addConstraint(Sketcher.Constraint("DistanceX", -1, 1, 52, 3, Q("14.235445 mm")))
sketch1.addConstraint(Sketcher.Constraint("DistanceY", 60, 3, -1, 1, Q("55.187373 mm")))
sketch1.addConstraint(Sketcher.Constraint("DistanceX", 64, 3, -1, 1, Q("1.264555 mm")))
sketch1.addConstraint(Sketcher.Constraint("DistanceY", 64, 3, -1, 1, Q("70.687373 mm")))
sketch1.addConstraint(Sketcher.Constraint("DistanceX", 0, 2, -1, 1, Q("173.735444 mm")))
sketch1.addConstraint(Sketcher.Constraint("DistanceX", 8, 2, -1, 1, Q("149.735444 mm")))
sketch1.addConstraint(Sketcher.Constraint("DistanceX", -1, 1, 12, 2, Q("39.264556 mm")))
sketch1.addConstraint(Sketcher.Constraint("DistanceY", 40, 2, -1, 1, Q("94.687373 mm")))
sketch1.addConstraint(Sketcher.Constraint("DistanceX", 56, 2, -1, 1, Q("152.264555 mm")))
sketch1.addConstraint(Sketcher.Constraint("DistanceY", 56, 2, -1, 1, Q("47.787373 mm")))
sketch1.addConstraint(Sketcher.Constraint("DistanceX", -1, 1, 68, 2, Q("36.735445 mm")))
sketch1.setExpression("Constraints[182]", "Params.sketch1_radius")
sketch1.setExpression("Constraints[183]", "Params.sketch1_radius2")
sketch1.setExpression("Constraints[184]", "Params.sketch1_radius3")
sketch1.setExpression("Constraints[185]", "Params.sketch1_width")
sketch1.setExpression("Constraints[186]", "Params.sketch1_width2")
pad1 = body.newObject("PartDesign::Pad", "Pad")
pad1.Profile = sketch1
pad1.setExpression("Length", "Params.pad1_length")

doc.recompute()
